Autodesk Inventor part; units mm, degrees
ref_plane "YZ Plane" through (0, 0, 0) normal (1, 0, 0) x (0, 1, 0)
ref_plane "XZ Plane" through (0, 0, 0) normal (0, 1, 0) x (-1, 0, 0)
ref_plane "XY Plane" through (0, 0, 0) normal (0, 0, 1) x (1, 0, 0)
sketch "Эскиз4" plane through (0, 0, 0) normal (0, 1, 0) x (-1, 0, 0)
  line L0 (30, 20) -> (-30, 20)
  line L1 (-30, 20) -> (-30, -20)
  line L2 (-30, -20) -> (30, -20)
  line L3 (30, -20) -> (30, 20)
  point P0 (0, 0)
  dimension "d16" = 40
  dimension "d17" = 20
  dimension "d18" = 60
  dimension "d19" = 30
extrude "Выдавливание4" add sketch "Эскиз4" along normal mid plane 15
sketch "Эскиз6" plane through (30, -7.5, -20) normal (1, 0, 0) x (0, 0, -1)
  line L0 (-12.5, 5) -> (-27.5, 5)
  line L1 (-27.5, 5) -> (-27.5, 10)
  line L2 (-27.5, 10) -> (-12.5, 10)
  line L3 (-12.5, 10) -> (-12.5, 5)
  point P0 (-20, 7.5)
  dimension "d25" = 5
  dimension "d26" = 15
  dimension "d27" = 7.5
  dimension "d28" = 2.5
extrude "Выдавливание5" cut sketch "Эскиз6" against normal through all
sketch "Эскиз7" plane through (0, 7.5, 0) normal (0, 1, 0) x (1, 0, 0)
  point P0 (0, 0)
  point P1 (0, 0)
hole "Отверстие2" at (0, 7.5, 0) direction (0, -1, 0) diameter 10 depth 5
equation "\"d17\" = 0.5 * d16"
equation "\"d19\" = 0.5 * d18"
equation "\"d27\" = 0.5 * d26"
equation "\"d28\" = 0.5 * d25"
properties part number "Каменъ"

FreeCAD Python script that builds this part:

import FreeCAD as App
import Part
import Sketcher

V = App.Vector
Q = App.Units.Quantity


def add_polygon(sketch, points):
    """Adds a closed chain of lines whose ends are joined by coincident constraints."""
    first, n = sketch.GeometryCount, len(points)
    for a, b in zip(points, points[1:] + points[:1]):
        sketch.addGeometry(Part.LineSegment(App.Vector(*a, 0), App.Vector(*b, 0)), False)
    for i in range(n):
        sketch.addConstraint(Sketcher.Constraint("Coincident", first + i, 2, first + (i + 1) % n, 1))

doc = App.newDocument("Part")
body = doc.addObject("PartDesign::Body", "Body")

# Sketch on XZ plane
sketch1 = body.newObject("Sketcher::SketchObject", "Sketch")
sketch1.AttachmentSupport = (doc.getObject("XZ_Plane"), [""])
sketch1.MapMode = "FlatFace"
add_polygon(sketch1, [(-30, -20), (-30, 20), (30, 20), (30, -20)])  # lines 0-3
sketch1.addConstraint([
    Sketcher.Constraint("Vertical", 0),
    Sketcher.Constraint("Horizontal", 1),
    Sketcher.Constraint("Vertical", 2),
    Sketcher.Constraint("Horizontal", 3),
    Sketcher.Constraint("Symmetric", 0, 2, 2, 2, -1, 1),
    Sketcher.Constraint("DistanceX", 1, 1, 1, 2, Q("60 mm")),
    Sketcher.Constraint("DistanceY", 0, 1, 0, 2, Q("40 mm")),
])
pad1 = body.newObject("PartDesign::Pad", "Pad")
pad1.Profile = sketch1
pad1.Length = 15
pad1.Midplane = True

# Sketch on YZ plane
sketch2 = body.newObject("Sketcher::SketchObject", "Sketch001")
sketch2.AttachmentSupport = (doc.getObject("YZ_Plane"), [""])
sketch2.MapMode = "FlatFace"
sketch2.AttachmentOffset = App.Placement(V(0, 0, 30), App.Rotation())
add_polygon(sketch2, [(-2, 8), (-2, -8), (2, -8), (2, 8)])  # lines 0-3
sketch2.addConstraint([
    Sketcher.Constraint("Vertical", 0),
    Sketcher.Constraint("Horizontal", 1),
    Sketcher.Constraint("Vertical", 2),
    Sketcher.Constraint("Horizontal", 3),
    Sketcher.Constraint("Symmetric", 0, 2, 2, 2, -1, 1),
    Sketcher.Constraint("DistanceX", 1, 1, 1, 2, Q("5 mm")),
    Sketcher.Constraint("DistanceY", 0, 2, 0, 1, Q("15 mm")),
])
pocket1 = body.newObject("PartDesign::Pocket", "Pocket")
pocket1.Profile = sketch2
pocket1.Type = "ThroughAll"

# Sketch on XZ plane
sketch3 = body.newObject("Sketcher::SketchObject", "Sketch002")
sketch3.AttachmentSupport = (doc.getObject("XZ_Plane"), [""])
sketch3.MapMode = "FlatFace"
sketch3.AttachmentOffset = App.Placement(V(0, 0, -7.5), App.Rotation())
sketch3.addGeometry(Part.Circle(V(0, 0, 0), V(0, 0, 1), 5), False)
sketch3.addConstraint([
    Sketcher.Constraint("Coincident", 0, 3, -1, 1),
    Sketcher.Constraint("Diameter", 0, Q("10 mm")),
])
doc.recompute()
hole = body.newObject("PartDesign::Hole", "Hole")
hole.Profile = sketch3
hole.ThreadType = "None"
hole.Diameter = 10
hole.DepthType = "Dimension"
hole.Depth = 5
hole.DrillPoint = "Flat"
hole.Reversed = True

doc.recompute()
